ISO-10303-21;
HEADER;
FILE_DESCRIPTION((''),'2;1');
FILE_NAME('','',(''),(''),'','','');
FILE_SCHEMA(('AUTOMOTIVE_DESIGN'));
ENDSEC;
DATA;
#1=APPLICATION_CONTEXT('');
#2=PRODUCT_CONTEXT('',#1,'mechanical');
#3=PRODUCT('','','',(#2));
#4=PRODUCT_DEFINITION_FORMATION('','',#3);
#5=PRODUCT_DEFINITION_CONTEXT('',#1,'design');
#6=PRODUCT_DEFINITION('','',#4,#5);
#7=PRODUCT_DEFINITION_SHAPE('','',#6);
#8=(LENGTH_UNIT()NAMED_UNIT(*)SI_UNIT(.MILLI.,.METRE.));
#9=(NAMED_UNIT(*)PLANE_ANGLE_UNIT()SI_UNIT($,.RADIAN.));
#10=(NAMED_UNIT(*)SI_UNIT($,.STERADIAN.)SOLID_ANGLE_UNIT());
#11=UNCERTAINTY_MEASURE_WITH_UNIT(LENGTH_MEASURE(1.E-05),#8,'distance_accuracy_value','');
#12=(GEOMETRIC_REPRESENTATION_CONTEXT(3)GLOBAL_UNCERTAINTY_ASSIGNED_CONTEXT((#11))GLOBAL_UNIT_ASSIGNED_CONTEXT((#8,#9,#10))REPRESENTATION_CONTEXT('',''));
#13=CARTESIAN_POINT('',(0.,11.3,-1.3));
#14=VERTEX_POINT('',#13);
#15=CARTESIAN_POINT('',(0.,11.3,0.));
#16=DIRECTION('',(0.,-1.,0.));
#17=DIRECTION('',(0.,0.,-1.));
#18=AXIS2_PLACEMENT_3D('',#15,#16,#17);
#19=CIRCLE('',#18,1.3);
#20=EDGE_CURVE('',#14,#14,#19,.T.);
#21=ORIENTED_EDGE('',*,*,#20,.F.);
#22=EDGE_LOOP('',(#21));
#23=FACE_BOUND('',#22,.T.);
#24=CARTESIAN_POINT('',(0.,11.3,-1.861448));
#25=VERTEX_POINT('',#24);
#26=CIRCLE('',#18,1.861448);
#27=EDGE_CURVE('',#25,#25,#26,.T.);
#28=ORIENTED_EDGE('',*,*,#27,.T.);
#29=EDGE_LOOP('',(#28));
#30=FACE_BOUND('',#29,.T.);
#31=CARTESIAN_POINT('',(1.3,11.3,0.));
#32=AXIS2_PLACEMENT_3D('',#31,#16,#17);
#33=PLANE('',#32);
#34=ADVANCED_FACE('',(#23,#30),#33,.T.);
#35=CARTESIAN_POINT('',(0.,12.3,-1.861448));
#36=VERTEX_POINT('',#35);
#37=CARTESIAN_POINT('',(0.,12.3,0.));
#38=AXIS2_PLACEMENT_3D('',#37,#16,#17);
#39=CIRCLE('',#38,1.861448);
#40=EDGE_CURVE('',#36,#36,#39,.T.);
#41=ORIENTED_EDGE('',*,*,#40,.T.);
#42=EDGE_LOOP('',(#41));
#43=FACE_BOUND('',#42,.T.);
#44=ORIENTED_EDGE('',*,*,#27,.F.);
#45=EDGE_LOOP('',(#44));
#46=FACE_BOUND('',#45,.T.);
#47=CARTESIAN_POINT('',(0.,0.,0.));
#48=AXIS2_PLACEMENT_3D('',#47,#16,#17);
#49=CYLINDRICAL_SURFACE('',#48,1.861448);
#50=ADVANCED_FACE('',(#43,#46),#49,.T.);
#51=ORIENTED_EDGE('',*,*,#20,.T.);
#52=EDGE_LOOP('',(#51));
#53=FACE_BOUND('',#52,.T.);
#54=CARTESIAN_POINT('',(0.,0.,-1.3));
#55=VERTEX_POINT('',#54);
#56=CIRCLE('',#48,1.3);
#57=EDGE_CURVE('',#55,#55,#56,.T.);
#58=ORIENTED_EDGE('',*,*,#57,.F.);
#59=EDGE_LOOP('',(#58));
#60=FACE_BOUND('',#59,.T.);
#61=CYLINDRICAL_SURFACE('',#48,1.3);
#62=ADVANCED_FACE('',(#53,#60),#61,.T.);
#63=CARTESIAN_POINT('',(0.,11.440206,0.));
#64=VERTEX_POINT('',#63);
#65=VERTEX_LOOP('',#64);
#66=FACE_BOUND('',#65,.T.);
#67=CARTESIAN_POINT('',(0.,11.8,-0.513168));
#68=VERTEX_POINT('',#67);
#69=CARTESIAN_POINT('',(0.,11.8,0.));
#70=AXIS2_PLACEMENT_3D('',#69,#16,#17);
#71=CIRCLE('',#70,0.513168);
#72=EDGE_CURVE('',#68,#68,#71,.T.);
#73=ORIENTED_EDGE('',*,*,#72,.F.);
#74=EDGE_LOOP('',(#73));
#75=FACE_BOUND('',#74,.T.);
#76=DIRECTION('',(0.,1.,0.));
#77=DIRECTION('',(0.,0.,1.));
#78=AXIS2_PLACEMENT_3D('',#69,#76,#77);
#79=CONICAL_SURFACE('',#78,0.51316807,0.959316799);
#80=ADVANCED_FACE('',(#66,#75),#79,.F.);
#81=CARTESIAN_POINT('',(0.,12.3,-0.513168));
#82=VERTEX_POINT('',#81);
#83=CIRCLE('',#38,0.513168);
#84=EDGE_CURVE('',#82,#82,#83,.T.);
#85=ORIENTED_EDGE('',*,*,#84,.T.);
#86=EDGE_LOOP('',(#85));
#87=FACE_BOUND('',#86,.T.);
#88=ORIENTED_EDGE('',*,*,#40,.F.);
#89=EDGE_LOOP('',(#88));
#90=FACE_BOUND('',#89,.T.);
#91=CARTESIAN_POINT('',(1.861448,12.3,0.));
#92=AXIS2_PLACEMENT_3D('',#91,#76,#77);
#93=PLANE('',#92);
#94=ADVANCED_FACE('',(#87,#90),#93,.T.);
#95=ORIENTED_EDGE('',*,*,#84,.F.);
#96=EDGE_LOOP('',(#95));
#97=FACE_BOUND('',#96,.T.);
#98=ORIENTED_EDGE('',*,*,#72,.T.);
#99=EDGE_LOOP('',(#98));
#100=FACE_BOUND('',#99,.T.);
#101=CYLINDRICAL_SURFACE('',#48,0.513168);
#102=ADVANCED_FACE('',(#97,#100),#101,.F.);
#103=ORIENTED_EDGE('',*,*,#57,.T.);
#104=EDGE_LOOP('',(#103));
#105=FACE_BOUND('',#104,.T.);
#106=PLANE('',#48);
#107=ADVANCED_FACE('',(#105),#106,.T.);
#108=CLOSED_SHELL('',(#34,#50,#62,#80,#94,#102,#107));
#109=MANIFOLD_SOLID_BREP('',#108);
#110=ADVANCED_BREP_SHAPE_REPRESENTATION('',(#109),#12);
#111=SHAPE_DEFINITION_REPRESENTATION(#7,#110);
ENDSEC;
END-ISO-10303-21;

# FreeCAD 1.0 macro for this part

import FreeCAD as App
import Part
import Sketcher

V = App.Vector

doc = App.newDocument("Part")
body = doc.addObject("PartDesign::Body", "Body")

# Sketch on XY plane
sketch1 = doc.addObject("Sketcher::SketchObject", "Sketch")
body.addObject(sketch1)
sketch1.AttachmentSupport = (doc.XY_Plane, [""])
sketch1.MapMode = "FlatFace"
sketch1.addGeometry(Part.LineSegment(V(0, 0, 0), V(1.3, 0, 0)), False)
sketch1.addGeometry(Part.LineSegment(V(1.3, 0, 0), V(1.3, 11.3, 0)), False)
sketch1.addGeometry(Part.LineSegment(V(1.3, 11.3, 0), V(1.861448, 11.3, 0)), False)
sketch1.addGeometry(Part.LineSegment(V(1.861448, 11.3, 0), V(1.861448, 12.3, 0)), False)
sketch1.addGeometry(Part.LineSegment(V(1.861448, 12.3, 0), V(0.513168, 12.3, 0)), False)
sketch1.addGeometry(Part.LineSegment(V(0.513168, 12.3, 0), V(0.513168, 11.8, 0)), False)
sketch1.addGeometry(Part.LineSegment(V(0.513168, 11.8, 0), V(0, 11.440206, 0)), False)
sketch1.addGeometry(Part.LineSegment(V(0, 11.440206, 0), V(0, 0, 0)), False)
sketch1.addConstraint(Sketcher.Constraint("Coincident", 0, 2, 1, 1))
sketch1.addConstraint(Sketcher.Constraint("Coincident", 1, 2, 2, 1))
sketch1.addConstraint(Sketcher.Constraint("Coincident", 2, 2, 3, 1))
sketch1.addConstraint(Sketcher.Constraint("Coincident", 3, 2, 4, 1))
sketch1.addConstraint(Sketcher.Constraint("Coincident", 4, 2, 5, 1))
sketch1.addConstraint(Sketcher.Constraint("Coincident", 5, 2, 6, 1))
sketch1.addConstraint(Sketcher.Constraint("Coincident", 6, 2, 7, 1))
sketch1.addConstraint(Sketcher.Constraint("Coincident", 7, 2, 0, 1))
sketch1.addConstraint(Sketcher.Constraint("Horizontal", 0))
sketch1.addConstraint(Sketcher.Constraint("Vertical", 1))
sketch1.addConstraint(Sketcher.Constraint("Horizontal", 2))
sketch1.addConstraint(Sketcher.Constraint("Vertical", 3))
sketch1.addConstraint(Sketcher.Constraint("Horizontal", 4))
sketch1.addConstraint(Sketcher.Constraint("Vertical", 5))
sketch1.addConstraint(Sketcher.Constraint("Vertical", 7))
sketch1.addConstraint(Sketcher.Constraint("Coincident", 7, 2, -1, 1))
sketch1.addConstraint(Sketcher.Constraint("DistanceY", 3, 1, 3, 2, 1.0))
sketch1.addConstraint(Sketcher.Constraint("DistanceX", 0, 1, 0, 2, 1.3))
sketch1.addConstraint(Sketcher.Constraint("DistanceY", 1, 1, 1, 2, 11.3))
sketch1.addConstraint(Sketcher.Constraint("DistanceY", 5, 2, 5, 1, 0.5))
sketch1.addConstraint(Sketcher.Constraint("DistanceX", 4, 2, 4, 1, 1.34828))
sketch1.addConstraint(Sketcher.Constraint("DistanceX", 2, 1, 2, 2, 0.561448))
sketch1.addConstraint(Sketcher.Constraint("DistanceY", 7, 2, 7, 1, 11.440206))
revolution = doc.addObject("PartDesign::Revolution", "Revolution")
body.addObject(revolution)
revolution.Profile = sketch1
revolution.ReferenceAxis = (sketch1, ["V_Axis"])
revolution.Angle = 360

doc.recompute()
